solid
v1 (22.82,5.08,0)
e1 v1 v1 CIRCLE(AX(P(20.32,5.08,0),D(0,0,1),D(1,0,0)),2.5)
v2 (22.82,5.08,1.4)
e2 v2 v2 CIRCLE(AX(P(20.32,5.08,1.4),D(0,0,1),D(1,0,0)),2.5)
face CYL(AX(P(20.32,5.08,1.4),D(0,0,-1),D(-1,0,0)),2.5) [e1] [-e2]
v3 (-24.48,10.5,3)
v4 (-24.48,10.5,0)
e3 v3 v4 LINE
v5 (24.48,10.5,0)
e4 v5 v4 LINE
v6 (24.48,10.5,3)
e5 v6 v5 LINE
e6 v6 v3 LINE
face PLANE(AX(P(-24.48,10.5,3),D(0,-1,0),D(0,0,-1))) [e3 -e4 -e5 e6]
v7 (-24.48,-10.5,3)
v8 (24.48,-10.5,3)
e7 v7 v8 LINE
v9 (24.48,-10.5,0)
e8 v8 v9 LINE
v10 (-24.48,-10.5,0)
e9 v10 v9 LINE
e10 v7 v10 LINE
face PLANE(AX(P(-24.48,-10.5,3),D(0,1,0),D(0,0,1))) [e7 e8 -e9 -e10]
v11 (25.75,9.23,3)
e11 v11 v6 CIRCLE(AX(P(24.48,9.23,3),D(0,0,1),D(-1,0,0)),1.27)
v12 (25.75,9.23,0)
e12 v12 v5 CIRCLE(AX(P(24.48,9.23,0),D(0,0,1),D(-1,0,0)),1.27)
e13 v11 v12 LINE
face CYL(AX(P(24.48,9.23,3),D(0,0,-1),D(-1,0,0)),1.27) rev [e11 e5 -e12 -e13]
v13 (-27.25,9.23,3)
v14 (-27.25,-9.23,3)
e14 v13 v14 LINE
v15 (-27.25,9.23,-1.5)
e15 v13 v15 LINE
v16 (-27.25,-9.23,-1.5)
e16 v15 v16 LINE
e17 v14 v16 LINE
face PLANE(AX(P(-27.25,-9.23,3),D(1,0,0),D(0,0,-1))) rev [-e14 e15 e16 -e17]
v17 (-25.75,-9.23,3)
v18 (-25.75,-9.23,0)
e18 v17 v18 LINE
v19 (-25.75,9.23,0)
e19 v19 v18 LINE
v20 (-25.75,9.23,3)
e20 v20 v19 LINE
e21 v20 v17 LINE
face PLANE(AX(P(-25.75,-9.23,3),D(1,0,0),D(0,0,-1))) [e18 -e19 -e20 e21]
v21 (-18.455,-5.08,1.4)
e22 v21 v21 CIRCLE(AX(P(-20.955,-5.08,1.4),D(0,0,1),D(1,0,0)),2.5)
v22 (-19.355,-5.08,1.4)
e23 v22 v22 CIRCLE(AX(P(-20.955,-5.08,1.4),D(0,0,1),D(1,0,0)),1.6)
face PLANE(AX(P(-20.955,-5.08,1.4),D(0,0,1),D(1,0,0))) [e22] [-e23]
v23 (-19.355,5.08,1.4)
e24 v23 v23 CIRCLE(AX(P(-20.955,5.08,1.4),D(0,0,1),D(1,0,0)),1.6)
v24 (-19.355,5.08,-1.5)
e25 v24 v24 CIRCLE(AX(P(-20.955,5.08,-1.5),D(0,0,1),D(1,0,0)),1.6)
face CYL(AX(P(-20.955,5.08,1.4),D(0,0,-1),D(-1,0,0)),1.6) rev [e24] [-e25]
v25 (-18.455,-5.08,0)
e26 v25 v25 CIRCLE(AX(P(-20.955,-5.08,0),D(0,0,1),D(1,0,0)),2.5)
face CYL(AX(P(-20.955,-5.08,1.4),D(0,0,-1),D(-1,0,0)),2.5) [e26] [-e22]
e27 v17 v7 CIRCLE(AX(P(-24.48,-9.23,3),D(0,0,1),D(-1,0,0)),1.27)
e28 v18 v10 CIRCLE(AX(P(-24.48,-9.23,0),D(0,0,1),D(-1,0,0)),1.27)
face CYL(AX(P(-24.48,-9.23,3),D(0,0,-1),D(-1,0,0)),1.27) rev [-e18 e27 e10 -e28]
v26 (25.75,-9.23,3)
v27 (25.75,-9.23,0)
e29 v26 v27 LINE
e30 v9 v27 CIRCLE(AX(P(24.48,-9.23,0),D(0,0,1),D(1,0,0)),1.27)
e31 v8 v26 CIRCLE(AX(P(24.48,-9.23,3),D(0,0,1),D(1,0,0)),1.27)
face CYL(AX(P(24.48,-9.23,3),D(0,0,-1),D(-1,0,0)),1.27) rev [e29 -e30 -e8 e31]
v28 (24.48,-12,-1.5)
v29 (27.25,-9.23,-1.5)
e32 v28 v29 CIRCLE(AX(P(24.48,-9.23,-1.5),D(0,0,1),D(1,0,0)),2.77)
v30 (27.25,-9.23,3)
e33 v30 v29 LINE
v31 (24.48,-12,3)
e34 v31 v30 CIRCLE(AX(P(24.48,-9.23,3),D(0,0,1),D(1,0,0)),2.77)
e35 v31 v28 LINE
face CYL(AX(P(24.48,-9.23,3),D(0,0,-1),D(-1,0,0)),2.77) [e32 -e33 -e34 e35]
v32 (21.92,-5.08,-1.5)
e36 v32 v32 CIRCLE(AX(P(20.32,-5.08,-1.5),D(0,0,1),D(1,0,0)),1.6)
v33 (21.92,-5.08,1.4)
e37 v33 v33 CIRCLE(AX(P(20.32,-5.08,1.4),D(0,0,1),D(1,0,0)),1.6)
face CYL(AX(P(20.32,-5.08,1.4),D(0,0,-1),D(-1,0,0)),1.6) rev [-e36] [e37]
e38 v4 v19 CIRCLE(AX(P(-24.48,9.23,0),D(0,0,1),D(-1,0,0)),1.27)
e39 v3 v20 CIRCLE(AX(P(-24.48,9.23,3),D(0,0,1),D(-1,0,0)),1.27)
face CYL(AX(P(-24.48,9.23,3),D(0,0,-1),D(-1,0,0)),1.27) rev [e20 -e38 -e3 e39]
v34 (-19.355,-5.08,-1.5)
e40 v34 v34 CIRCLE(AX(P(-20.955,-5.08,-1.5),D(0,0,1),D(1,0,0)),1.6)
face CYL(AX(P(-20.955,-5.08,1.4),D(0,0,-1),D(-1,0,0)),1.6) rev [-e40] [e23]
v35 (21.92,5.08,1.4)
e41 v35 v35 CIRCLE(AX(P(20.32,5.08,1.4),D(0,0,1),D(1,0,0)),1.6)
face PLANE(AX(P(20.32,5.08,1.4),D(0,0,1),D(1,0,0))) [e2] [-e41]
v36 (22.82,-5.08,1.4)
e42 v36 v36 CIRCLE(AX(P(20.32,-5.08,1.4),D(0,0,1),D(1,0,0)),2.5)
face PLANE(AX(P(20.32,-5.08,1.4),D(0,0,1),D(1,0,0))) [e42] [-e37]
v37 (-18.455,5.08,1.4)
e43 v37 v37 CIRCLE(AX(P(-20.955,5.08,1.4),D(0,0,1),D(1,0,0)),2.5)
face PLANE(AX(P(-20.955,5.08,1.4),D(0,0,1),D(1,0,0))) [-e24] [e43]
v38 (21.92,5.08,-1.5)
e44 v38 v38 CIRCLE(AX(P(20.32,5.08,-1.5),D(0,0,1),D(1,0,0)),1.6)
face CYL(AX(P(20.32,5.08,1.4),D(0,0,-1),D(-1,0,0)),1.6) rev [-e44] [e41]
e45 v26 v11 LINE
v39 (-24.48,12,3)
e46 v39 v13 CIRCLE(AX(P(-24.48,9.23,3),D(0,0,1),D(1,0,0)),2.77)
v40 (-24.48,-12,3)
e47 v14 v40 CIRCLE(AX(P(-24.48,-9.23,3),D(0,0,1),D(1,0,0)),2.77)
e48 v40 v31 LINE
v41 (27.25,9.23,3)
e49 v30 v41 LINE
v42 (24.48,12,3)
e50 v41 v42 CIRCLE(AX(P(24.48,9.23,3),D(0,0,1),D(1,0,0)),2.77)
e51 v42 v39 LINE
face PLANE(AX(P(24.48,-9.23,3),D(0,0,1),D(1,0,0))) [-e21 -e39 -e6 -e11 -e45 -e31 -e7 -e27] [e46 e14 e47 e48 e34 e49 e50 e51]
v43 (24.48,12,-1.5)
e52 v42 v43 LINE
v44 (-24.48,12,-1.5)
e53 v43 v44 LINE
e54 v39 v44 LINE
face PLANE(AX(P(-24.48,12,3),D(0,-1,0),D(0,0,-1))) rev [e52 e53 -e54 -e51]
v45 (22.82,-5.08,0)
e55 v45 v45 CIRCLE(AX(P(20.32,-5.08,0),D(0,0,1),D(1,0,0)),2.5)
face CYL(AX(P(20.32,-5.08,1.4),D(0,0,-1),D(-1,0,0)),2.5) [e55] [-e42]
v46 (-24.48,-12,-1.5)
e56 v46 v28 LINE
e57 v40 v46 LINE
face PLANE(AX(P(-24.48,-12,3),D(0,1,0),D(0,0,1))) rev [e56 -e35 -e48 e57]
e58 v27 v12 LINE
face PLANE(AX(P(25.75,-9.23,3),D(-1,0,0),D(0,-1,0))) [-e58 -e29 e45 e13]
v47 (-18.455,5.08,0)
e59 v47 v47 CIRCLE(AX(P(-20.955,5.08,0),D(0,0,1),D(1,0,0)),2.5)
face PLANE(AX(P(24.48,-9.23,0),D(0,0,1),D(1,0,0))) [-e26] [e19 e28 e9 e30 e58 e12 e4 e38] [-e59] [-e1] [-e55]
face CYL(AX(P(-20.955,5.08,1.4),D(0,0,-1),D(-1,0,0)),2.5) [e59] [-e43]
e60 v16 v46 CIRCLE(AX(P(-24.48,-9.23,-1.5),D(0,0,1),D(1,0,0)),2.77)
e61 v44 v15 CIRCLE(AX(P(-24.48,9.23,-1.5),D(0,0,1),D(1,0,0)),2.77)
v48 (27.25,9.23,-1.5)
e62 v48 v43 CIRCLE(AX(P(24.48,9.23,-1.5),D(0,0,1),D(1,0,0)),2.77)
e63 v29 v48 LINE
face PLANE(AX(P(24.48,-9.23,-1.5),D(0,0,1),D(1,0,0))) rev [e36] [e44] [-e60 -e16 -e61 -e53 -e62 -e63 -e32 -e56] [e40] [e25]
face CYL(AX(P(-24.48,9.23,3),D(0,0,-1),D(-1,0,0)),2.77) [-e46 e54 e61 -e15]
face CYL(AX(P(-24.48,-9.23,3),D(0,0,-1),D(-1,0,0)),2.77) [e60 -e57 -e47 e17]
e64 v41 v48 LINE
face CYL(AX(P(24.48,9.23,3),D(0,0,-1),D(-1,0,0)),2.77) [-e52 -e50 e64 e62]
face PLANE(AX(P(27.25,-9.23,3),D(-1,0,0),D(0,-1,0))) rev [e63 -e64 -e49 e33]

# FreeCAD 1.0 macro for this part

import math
import FreeCAD as App
import Part
import Sketcher
from FreeCAD import Vector
Q = App.Units.Quantity


def faces_at(feature, points):
    """Names of the faces that lie closest to the given points."""
    faces = feature.Shape.Faces
    near = lambda p: min(range(len(faces)), key=lambda i: faces[i].distToShape(Part.Vertex(*p))[0])
    return sorted({f"Face{near(p) + 1}" for p in points})

doc = App.newDocument("Part")
body = doc.addObject("PartDesign::Body", "Body")

sketch1 = doc.addObject("Sketcher::SketchObject", "Sketch")
body.addObject(sketch1)
sketch1.AttachmentSupport = (doc.XY_Plane, [""])
sketch1.MapMode = "FlatFace"
sketch1.addGeometry(Part.LineSegment(Vector(-24.5, -10.5, 0), Vector(24.5, -10.5, 0)), False)
sketch1.addGeometry(Part.ArcOfCircle(Part.Circle(Vector(24.5, -9.2, 0), Vector(0, 0, 1), 1.3), math.radians(-90), math.radians(0)), False)
sketch1.addGeometry(Part.LineSegment(Vector(25.8, -9.2, 0), Vector(25.8, 9.2, 0)), False)
sketch1.addGeometry(Part.ArcOfCircle(Part.Circle(Vector(24.5, 9.2, 0), Vector(0, 0, 1), 1.3), math.radians(0), math.radians(90)), False)
sketch1.addGeometry(Part.LineSegment(Vector(24.5, 10.5, 0), Vector(-24.5, 10.5, 0)), False)
sketch1.addGeometry(Part.ArcOfCircle(Part.Circle(Vector(-24.5, 9.2, 0), Vector(0, 0, 1), 1.3), math.radians(90), math.radians(180)), False)
sketch1.addGeometry(Part.LineSegment(Vector(-25.8, 9.2, 0), Vector(-25.8, -9.2, 0)), False)
sketch1.addGeometry(Part.ArcOfCircle(Part.Circle(Vector(-24.5, -9.2, 0), Vector(0, 0, 1), 1.3), math.radians(180), math.radians(270)), False)
sketch1.addConstraint(Sketcher.Constraint("Tangent", 0, 2, 1, 1))
sketch1.addConstraint(Sketcher.Constraint("Tangent", 1, 2, 2, 1))
sketch1.addConstraint(Sketcher.Constraint("Tangent", 2, 2, 3, 1))
sketch1.addConstraint(Sketcher.Constraint("Tangent", 3, 2, 4, 1))
sketch1.addConstraint(Sketcher.Constraint("Tangent", 4, 2, 5, 1))
sketch1.addConstraint(Sketcher.Constraint("Tangent", 5, 2, 6, 1))
sketch1.addConstraint(Sketcher.Constraint("Tangent", 6, 2, 7, 1))
sketch1.addConstraint(Sketcher.Constraint("Tangent", 7, 2, 0, 1))
sketch1.addConstraint(Sketcher.Constraint("Horizontal", 0))
sketch1.addConstraint(Sketcher.Constraint("Vertical", 2))
sketch1.addConstraint(Sketcher.Constraint("Horizontal", 4))
sketch1.addConstraint(Sketcher.Constraint("Vertical", 6))
sketch1.addConstraint(Sketcher.Constraint("Equal", 1, 3))
sketch1.addConstraint(Sketcher.Constraint("Equal", 3, 5))
sketch1.addConstraint(Sketcher.Constraint("Equal", 5, 7))
sketch1.addConstraint(Sketcher.Constraint("Symmetric", 1, 3, 5, 3, -1, 1))
sketch1.addConstraint(Sketcher.Constraint("Radius", 1, Q("1.27 mm")))
sketch1.addConstraint(Sketcher.Constraint("DistanceY", 0, 2, 3, 2, Q("21 mm")))
sketch1.addConstraint(Sketcher.Constraint("DistanceX", 0, 1, 0, 2, Q("48.96 mm")))
pad1 = doc.addObject("PartDesign::Pad", "Pad")
body.addObject(pad1)
pad1.Profile = sketch1
pad1.Length = 3
doc.recompute()

thickness = doc.addObject("PartDesign::Thickness", "Thickness")
body.addObject(thickness)
thickness.Base = (pad1, faces_at(pad1, [(0, 0, 3)]))
thickness.Value = 1.5
thickness.Reversed = False
thickness.Join = "Intersection"

sketch2 = doc.addObject("Sketcher::SketchObject", "Sketch001")
body.addObject(sketch2)
sketch2.AttachmentSupport = (doc.XY_Plane, [""])
sketch2.MapMode = "FlatFace"
sketch2.addGeometry(Part.Circle(Vector(20.3, 5.1, 0), Vector(0, 0, 1), 2.5), False)
sketch2.addGeometry(Part.Circle(Vector(20.3, 5.1, 0), Vector(0, 0, 1), 1.6), False)
sketch2.addGeometry(Part.Circle(Vector(-21, -5.1, 0), Vector(0, 0, 1), 2.5), False)
sketch2.addGeometry(Part.Circle(Vector(-21, -5.1, 0), Vector(0, 0, 1), 1.6), False)
sketch2.addGeometry(Part.Circle(Vector(-21, 5.1, 0), Vector(0, 0, 1), 2.5), False)
sketch2.addGeometry(Part.Circle(Vector(-21, 5.1, 0), Vector(0, 0, 1), 1.6), False)
sketch2.addGeometry(Part.Circle(Vector(20.3, -5.1, 0), Vector(0, 0, 1), 2.5), False)
sketch2.addGeometry(Part.Circle(Vector(20.3, -5.1, 0), Vector(0, 0, 1), 1.6), False)
sketch2.addConstraint(Sketcher.Constraint("Coincident", 1, 3, 0, 3))
sketch2.addConstraint(Sketcher.Constraint("Coincident", 3, 3, 2, 3))
sketch2.addConstraint(Sketcher.Constraint("Coincident", 5, 3, 4, 3))
sketch2.addConstraint(Sketcher.Constraint("Coincident", 7, 3, 6, 3))
sketch2.addConstraint(Sketcher.Constraint("Equal", 0, 2))
sketch2.addConstraint(Sketcher.Constraint("Equal", 1, 3))
sketch2.addConstraint(Sketcher.Constraint("Equal", 2, 4))
sketch2.addConstraint(Sketcher.Constraint("Equal", 3, 5))
sketch2.addConstraint(Sketcher.Constraint("Equal", 4, 6))
sketch2.addConstraint(Sketcher.Constraint("Equal", 5, 7))
sketch2.addConstraint(Sketcher.Constraint("Symmetric", 2, 3, 4, 3, -1))
sketch2.addConstraint(Sketcher.Constraint("Symmetric", 0, 3, 6, 3, -1))
sketch2.addConstraint(Sketcher.Constraint("Horizontal", 1, 3, 4, 3))
sketch2.addConstraint(Sketcher.Constraint("Diameter", 0, Q("5 mm")))
sketch2.addConstraint(Sketcher.Constraint("Diameter", 1, Q("3.2 mm")))
sketch2.addConstraint(Sketcher.Constraint("DistanceX", -1, 1, 0, 3, Q("20.32 mm")))
sketch2.addConstraint(Sketcher.Constraint("DistanceY", -1, 1, 0, 3, Q("5.08 mm")))
sketch2.addConstraint(Sketcher.Constraint("DistanceX", 2, 3, -1, 1, Q("20.955 mm")))
pad2 = doc.addObject("PartDesign::Pad", "Pad001")
body.addObject(pad2)
pad2.Profile = sketch2
pad2.Length = 1.4

sketch3 = doc.addObject("Sketcher::SketchObject", "Sketch002")
body.addObject(sketch3)
sketch3.AttachmentSupport = (doc.XY_Plane, [""])
sketch3.MapMode = "FlatFace"
sketch3.addGeometry(Part.Circle(Vector(20.3, 5.1, 0), Vector(0, 0, 1), 1.6), False)
sketch3.addGeometry(Part.Circle(Vector(-21, 5.1, 0), Vector(0, 0, 1), 1.6), False)
sketch3.addGeometry(Part.Circle(Vector(-21, -5.1, 0), Vector(0, 0, 1), 1.6), False)
sketch3.addGeometry(Part.Circle(Vector(20.3, -5.1, 0), Vector(0, 0, 1), 1.6), False)
sketch3.addConstraint(Sketcher.Constraint("Equal", 0, 1))
sketch3.addConstraint(Sketcher.Constraint("Equal", 1, 2))
sketch3.addConstraint(Sketcher.Constraint("Equal", 2, 3))
sketch3.addConstraint(Sketcher.Constraint("Symmetric", 1, 3, 2, 3, -1))
sketch3.addConstraint(Sketcher.Constraint("Symmetric", 0, 3, 3, 3, -1))
sketch3.addConstraint(Sketcher.Constraint("Horizontal", 0, 3, 1, 3))
sketch3.addConstraint(Sketcher.Constraint("Diameter", 0, Q("3.2 mm")))
sketch3.addConstraint(Sketcher.Constraint("DistanceX", -1, 1, 0, 3, Q("20.32 mm")))
sketch3.addConstraint(Sketcher.Constraint("DistanceY", -1, 1, 0, 3, Q("5.08 mm")))
sketch3.addConstraint(Sketcher.Constraint("DistanceX", 1, 3, -1, 1, Q("20.955 mm")))
pocket1 = doc.addObject("PartDesign::Pocket", "Pocket")
body.addObject(pocket1)
pocket1.Profile = sketch3
pocket1.Type = "ThroughAll"
pocket1.Midplane = True

doc.recompute()
